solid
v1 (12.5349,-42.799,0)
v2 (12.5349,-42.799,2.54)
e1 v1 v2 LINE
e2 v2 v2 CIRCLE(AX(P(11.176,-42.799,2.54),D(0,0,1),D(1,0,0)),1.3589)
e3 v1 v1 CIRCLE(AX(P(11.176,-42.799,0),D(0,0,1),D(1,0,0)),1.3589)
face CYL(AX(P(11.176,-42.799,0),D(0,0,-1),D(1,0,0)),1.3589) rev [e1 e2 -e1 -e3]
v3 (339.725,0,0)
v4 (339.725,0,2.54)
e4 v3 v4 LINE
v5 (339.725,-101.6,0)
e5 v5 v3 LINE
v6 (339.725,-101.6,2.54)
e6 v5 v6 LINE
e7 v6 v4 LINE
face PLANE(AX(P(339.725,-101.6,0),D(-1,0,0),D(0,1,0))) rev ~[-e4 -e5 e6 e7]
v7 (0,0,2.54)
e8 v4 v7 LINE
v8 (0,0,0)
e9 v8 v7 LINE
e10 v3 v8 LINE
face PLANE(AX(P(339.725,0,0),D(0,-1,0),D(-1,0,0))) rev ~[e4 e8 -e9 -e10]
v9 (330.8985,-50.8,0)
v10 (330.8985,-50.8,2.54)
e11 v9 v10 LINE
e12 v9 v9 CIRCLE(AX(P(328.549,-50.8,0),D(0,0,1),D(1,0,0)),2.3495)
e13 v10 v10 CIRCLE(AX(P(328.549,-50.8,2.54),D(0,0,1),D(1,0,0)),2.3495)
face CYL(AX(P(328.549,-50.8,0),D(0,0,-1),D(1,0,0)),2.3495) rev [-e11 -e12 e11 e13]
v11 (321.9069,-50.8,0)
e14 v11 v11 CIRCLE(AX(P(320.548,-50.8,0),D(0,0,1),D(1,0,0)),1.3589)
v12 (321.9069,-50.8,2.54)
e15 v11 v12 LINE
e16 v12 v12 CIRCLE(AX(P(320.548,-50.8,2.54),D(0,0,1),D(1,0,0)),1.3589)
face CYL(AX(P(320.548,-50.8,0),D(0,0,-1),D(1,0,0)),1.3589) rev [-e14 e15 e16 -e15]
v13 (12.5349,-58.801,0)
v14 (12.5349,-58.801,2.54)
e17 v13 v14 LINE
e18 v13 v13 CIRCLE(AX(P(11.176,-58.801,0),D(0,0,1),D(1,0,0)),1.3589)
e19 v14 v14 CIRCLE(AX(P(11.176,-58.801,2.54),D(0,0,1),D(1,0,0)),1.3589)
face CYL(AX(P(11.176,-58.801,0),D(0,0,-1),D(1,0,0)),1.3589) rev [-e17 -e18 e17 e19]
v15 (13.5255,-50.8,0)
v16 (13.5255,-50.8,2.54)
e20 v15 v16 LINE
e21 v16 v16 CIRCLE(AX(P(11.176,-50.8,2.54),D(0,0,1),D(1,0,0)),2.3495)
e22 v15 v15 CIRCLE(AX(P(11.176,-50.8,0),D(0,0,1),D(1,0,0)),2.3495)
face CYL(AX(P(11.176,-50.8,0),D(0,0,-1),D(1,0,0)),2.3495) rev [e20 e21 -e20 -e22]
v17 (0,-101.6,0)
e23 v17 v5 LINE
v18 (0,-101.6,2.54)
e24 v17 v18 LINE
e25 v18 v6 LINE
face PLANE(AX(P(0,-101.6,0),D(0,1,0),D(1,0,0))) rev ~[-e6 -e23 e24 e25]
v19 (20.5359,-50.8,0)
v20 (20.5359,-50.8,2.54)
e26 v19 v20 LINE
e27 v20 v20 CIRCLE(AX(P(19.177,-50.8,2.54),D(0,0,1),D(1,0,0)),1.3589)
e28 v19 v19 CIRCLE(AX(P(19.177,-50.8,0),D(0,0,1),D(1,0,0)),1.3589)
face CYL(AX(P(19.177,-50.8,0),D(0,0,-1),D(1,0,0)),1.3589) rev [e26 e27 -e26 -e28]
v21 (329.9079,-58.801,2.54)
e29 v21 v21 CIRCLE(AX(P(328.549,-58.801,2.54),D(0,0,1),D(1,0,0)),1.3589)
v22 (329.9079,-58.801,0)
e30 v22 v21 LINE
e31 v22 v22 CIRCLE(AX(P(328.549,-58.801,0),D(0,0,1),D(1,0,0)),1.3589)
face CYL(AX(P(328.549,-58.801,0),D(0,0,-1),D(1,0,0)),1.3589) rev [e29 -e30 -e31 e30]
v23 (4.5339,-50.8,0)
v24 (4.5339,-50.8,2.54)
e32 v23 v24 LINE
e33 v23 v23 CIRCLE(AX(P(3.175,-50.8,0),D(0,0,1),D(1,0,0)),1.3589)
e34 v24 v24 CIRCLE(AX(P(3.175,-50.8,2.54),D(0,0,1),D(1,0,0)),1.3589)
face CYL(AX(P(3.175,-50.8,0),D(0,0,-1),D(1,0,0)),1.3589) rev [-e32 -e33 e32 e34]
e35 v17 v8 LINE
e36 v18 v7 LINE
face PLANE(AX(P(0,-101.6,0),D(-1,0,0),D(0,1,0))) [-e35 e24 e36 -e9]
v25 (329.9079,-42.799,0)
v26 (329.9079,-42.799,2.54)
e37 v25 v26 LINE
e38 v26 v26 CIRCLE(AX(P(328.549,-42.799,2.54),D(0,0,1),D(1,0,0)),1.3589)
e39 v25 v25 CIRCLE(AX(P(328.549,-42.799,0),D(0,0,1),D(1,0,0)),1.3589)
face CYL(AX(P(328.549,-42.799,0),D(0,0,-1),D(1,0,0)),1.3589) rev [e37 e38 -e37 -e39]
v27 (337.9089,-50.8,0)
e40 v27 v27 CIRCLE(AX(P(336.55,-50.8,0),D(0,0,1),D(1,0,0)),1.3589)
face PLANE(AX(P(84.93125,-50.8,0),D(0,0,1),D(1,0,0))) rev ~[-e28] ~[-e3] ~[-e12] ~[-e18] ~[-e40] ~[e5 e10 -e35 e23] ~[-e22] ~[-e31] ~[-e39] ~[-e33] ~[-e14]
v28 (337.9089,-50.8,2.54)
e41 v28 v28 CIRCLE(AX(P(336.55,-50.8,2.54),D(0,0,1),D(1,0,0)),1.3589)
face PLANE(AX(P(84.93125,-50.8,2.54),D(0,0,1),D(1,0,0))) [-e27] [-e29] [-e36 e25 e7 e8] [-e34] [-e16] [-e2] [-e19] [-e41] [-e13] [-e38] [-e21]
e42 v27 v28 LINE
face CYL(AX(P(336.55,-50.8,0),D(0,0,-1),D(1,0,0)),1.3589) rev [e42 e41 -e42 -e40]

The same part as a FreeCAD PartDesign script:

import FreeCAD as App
import Part
import Sketcher
from FreeCAD import Vector
Q = App.Units.Quantity

doc = App.newDocument("Part")
body = doc.addObject("PartDesign::Body", "Body")

# Sketch on XY plane
sketch1 = doc.addObject("Sketcher::SketchObject", "Sketch")
body.addObject(sketch1)
sketch1.AttachmentSupport = (doc.XY_Plane, [""])
sketch1.MapMode = "FlatFace"
sketch1.addGeometry([
    Part.LineSegment(Vector(0, 0, 0), Vector(0, -101.6, 0)),  # 0
    Part.LineSegment(Vector(0, -101.6, 0), Vector(339.725, -101.6, 0)),  # 1
    Part.LineSegment(Vector(339.725, -101.6, 0), Vector(339.725, 0, 0)),  # 2
    Part.LineSegment(Vector(339.725, 0, 0), Vector(0, 0, 0)),  # 3
    Part.Circle(Vector(11.176, -58.801, 0), Vector(0, 0, 1), 1.3589),  # 4
    Part.Circle(Vector(328.549, -58.801, 0), Vector(0, 0, 1), 1.3589),  # 5
    Part.Circle(Vector(3.175, -50.8, 0), Vector(0, 0, 1), 1.3589),  # 6
    Part.Circle(Vector(11.176, -50.8, 0), Vector(0, 0, 1), 2.3495),  # 7
    Part.Circle(Vector(19.177, -50.8, 0), Vector(0, 0, 1), 1.3589),  # 8
    Part.Circle(Vector(11.176, -42.799, 0), Vector(0, 0, 1), 1.3589),  # 9
    Part.Circle(Vector(320.548, -50.8, 0), Vector(0, 0, 1), 1.3589),  # 10
    Part.Circle(Vector(328.549, -50.8, 0), Vector(0, 0, 1), 2.3495),  # 11
    Part.Circle(Vector(336.55, -50.8, 0), Vector(0, 0, 1), 1.3589),  # 12
    Part.Circle(Vector(328.549, -42.799, 0), Vector(0, 0, 1), 1.3589),  # 13
], False)
sketch1.addConstraint([
    Sketcher.Constraint("Coincident", 0, 2, 1, 1),
    Sketcher.Constraint("Coincident", 1, 2, 2, 1),
    Sketcher.Constraint("Coincident", 2, 2, 3, 1),
    Sketcher.Constraint("Coincident", 3, 2, 0, 1),
    Sketcher.Constraint("Vertical", 0),
    Sketcher.Constraint("Horizontal", 1),
    Sketcher.Constraint("Vertical", 2),
    Sketcher.Constraint("Horizontal", 3),
    Sketcher.Constraint("Coincident", 3, 2, -1, 1),
    Sketcher.Constraint("Equal", 4, 5),
    Sketcher.Constraint("Equal", 5, 6),
    Sketcher.Constraint("Equal", 6, 8),
    Sketcher.Constraint("Equal", 8, 9),
    Sketcher.Constraint("Equal", 9, 10),
    Sketcher.Constraint("Equal", 7, 11),
    Sketcher.Constraint("Equal", 10, 12),
    Sketcher.Constraint("Equal", 12, 13),
    Sketcher.Constraint("Horizontal", 4, 3, 5, 3),
    Sketcher.Constraint("Horizontal", 6, 3, 7, 3),
    Sketcher.Constraint("Horizontal", 7, 3, 8, 3),
    Sketcher.Constraint("Horizontal", 8, 3, 10, 3),
    Sketcher.Constraint("Horizontal", 10, 3, 11, 3),
    Sketcher.Constraint("Horizontal", 11, 3, 12, 3),
    Sketcher.Constraint("Horizontal", 9, 3, 13, 3),
    Sketcher.Constraint("Vertical", 4, 3, 7, 3),
    Sketcher.Constraint("Vertical", 7, 3, 9, 3),
    Sketcher.Constraint("Vertical", 5, 3, 11, 3),
    Sketcher.Constraint("Vertical", 11, 3, 13, 3),
    Sketcher.Constraint("DistanceY", 0, 2, 0, 1, Q("4 in")),
    Sketcher.Constraint("Diameter", 4, Q("0.107 in")),
    Sketcher.Constraint("Diameter", 7, Q("0.185 in")),
    Sketcher.Constraint("DistanceY", 6, 3, -1, 1, Q("2 in")),
    Sketcher.Constraint("DistanceX", 1, 1, 1, 2, Q("13.375 in")),
    Sketcher.Constraint("DistanceX", -1, 1, 4, 3, Q("0.44 in")),
    Sketcher.Constraint("DistanceX", -1, 1, 10, 3, Q("12.62 in")),
    Sketcher.Constraint("DistanceX", -1, 1, 12, 3, Q("13.25 in")),
    Sketcher.Constraint("DistanceX", 6, 3, 5, 3, Q("12.81 in")),
    Sketcher.Constraint("DistanceX", 6, 3, 8, 3, Q("0.63 in")),
    Sketcher.Constraint("DistanceY", 4, 3, 9, 3, Q("0.63 in")),
    Sketcher.Constraint("DistanceX", 5, 3, 1, 2, Q("0.44 in")),
    Sketcher.Constraint("DistanceY", 4, 3, -1, 1, Q("2.315 in")),
])
pad1 = doc.addObject("PartDesign::Pad", "Pad")
body.addObject(pad1)
pad1.Profile = sketch1
pad1.Length = Q("0.1 in")

doc.recompute()
